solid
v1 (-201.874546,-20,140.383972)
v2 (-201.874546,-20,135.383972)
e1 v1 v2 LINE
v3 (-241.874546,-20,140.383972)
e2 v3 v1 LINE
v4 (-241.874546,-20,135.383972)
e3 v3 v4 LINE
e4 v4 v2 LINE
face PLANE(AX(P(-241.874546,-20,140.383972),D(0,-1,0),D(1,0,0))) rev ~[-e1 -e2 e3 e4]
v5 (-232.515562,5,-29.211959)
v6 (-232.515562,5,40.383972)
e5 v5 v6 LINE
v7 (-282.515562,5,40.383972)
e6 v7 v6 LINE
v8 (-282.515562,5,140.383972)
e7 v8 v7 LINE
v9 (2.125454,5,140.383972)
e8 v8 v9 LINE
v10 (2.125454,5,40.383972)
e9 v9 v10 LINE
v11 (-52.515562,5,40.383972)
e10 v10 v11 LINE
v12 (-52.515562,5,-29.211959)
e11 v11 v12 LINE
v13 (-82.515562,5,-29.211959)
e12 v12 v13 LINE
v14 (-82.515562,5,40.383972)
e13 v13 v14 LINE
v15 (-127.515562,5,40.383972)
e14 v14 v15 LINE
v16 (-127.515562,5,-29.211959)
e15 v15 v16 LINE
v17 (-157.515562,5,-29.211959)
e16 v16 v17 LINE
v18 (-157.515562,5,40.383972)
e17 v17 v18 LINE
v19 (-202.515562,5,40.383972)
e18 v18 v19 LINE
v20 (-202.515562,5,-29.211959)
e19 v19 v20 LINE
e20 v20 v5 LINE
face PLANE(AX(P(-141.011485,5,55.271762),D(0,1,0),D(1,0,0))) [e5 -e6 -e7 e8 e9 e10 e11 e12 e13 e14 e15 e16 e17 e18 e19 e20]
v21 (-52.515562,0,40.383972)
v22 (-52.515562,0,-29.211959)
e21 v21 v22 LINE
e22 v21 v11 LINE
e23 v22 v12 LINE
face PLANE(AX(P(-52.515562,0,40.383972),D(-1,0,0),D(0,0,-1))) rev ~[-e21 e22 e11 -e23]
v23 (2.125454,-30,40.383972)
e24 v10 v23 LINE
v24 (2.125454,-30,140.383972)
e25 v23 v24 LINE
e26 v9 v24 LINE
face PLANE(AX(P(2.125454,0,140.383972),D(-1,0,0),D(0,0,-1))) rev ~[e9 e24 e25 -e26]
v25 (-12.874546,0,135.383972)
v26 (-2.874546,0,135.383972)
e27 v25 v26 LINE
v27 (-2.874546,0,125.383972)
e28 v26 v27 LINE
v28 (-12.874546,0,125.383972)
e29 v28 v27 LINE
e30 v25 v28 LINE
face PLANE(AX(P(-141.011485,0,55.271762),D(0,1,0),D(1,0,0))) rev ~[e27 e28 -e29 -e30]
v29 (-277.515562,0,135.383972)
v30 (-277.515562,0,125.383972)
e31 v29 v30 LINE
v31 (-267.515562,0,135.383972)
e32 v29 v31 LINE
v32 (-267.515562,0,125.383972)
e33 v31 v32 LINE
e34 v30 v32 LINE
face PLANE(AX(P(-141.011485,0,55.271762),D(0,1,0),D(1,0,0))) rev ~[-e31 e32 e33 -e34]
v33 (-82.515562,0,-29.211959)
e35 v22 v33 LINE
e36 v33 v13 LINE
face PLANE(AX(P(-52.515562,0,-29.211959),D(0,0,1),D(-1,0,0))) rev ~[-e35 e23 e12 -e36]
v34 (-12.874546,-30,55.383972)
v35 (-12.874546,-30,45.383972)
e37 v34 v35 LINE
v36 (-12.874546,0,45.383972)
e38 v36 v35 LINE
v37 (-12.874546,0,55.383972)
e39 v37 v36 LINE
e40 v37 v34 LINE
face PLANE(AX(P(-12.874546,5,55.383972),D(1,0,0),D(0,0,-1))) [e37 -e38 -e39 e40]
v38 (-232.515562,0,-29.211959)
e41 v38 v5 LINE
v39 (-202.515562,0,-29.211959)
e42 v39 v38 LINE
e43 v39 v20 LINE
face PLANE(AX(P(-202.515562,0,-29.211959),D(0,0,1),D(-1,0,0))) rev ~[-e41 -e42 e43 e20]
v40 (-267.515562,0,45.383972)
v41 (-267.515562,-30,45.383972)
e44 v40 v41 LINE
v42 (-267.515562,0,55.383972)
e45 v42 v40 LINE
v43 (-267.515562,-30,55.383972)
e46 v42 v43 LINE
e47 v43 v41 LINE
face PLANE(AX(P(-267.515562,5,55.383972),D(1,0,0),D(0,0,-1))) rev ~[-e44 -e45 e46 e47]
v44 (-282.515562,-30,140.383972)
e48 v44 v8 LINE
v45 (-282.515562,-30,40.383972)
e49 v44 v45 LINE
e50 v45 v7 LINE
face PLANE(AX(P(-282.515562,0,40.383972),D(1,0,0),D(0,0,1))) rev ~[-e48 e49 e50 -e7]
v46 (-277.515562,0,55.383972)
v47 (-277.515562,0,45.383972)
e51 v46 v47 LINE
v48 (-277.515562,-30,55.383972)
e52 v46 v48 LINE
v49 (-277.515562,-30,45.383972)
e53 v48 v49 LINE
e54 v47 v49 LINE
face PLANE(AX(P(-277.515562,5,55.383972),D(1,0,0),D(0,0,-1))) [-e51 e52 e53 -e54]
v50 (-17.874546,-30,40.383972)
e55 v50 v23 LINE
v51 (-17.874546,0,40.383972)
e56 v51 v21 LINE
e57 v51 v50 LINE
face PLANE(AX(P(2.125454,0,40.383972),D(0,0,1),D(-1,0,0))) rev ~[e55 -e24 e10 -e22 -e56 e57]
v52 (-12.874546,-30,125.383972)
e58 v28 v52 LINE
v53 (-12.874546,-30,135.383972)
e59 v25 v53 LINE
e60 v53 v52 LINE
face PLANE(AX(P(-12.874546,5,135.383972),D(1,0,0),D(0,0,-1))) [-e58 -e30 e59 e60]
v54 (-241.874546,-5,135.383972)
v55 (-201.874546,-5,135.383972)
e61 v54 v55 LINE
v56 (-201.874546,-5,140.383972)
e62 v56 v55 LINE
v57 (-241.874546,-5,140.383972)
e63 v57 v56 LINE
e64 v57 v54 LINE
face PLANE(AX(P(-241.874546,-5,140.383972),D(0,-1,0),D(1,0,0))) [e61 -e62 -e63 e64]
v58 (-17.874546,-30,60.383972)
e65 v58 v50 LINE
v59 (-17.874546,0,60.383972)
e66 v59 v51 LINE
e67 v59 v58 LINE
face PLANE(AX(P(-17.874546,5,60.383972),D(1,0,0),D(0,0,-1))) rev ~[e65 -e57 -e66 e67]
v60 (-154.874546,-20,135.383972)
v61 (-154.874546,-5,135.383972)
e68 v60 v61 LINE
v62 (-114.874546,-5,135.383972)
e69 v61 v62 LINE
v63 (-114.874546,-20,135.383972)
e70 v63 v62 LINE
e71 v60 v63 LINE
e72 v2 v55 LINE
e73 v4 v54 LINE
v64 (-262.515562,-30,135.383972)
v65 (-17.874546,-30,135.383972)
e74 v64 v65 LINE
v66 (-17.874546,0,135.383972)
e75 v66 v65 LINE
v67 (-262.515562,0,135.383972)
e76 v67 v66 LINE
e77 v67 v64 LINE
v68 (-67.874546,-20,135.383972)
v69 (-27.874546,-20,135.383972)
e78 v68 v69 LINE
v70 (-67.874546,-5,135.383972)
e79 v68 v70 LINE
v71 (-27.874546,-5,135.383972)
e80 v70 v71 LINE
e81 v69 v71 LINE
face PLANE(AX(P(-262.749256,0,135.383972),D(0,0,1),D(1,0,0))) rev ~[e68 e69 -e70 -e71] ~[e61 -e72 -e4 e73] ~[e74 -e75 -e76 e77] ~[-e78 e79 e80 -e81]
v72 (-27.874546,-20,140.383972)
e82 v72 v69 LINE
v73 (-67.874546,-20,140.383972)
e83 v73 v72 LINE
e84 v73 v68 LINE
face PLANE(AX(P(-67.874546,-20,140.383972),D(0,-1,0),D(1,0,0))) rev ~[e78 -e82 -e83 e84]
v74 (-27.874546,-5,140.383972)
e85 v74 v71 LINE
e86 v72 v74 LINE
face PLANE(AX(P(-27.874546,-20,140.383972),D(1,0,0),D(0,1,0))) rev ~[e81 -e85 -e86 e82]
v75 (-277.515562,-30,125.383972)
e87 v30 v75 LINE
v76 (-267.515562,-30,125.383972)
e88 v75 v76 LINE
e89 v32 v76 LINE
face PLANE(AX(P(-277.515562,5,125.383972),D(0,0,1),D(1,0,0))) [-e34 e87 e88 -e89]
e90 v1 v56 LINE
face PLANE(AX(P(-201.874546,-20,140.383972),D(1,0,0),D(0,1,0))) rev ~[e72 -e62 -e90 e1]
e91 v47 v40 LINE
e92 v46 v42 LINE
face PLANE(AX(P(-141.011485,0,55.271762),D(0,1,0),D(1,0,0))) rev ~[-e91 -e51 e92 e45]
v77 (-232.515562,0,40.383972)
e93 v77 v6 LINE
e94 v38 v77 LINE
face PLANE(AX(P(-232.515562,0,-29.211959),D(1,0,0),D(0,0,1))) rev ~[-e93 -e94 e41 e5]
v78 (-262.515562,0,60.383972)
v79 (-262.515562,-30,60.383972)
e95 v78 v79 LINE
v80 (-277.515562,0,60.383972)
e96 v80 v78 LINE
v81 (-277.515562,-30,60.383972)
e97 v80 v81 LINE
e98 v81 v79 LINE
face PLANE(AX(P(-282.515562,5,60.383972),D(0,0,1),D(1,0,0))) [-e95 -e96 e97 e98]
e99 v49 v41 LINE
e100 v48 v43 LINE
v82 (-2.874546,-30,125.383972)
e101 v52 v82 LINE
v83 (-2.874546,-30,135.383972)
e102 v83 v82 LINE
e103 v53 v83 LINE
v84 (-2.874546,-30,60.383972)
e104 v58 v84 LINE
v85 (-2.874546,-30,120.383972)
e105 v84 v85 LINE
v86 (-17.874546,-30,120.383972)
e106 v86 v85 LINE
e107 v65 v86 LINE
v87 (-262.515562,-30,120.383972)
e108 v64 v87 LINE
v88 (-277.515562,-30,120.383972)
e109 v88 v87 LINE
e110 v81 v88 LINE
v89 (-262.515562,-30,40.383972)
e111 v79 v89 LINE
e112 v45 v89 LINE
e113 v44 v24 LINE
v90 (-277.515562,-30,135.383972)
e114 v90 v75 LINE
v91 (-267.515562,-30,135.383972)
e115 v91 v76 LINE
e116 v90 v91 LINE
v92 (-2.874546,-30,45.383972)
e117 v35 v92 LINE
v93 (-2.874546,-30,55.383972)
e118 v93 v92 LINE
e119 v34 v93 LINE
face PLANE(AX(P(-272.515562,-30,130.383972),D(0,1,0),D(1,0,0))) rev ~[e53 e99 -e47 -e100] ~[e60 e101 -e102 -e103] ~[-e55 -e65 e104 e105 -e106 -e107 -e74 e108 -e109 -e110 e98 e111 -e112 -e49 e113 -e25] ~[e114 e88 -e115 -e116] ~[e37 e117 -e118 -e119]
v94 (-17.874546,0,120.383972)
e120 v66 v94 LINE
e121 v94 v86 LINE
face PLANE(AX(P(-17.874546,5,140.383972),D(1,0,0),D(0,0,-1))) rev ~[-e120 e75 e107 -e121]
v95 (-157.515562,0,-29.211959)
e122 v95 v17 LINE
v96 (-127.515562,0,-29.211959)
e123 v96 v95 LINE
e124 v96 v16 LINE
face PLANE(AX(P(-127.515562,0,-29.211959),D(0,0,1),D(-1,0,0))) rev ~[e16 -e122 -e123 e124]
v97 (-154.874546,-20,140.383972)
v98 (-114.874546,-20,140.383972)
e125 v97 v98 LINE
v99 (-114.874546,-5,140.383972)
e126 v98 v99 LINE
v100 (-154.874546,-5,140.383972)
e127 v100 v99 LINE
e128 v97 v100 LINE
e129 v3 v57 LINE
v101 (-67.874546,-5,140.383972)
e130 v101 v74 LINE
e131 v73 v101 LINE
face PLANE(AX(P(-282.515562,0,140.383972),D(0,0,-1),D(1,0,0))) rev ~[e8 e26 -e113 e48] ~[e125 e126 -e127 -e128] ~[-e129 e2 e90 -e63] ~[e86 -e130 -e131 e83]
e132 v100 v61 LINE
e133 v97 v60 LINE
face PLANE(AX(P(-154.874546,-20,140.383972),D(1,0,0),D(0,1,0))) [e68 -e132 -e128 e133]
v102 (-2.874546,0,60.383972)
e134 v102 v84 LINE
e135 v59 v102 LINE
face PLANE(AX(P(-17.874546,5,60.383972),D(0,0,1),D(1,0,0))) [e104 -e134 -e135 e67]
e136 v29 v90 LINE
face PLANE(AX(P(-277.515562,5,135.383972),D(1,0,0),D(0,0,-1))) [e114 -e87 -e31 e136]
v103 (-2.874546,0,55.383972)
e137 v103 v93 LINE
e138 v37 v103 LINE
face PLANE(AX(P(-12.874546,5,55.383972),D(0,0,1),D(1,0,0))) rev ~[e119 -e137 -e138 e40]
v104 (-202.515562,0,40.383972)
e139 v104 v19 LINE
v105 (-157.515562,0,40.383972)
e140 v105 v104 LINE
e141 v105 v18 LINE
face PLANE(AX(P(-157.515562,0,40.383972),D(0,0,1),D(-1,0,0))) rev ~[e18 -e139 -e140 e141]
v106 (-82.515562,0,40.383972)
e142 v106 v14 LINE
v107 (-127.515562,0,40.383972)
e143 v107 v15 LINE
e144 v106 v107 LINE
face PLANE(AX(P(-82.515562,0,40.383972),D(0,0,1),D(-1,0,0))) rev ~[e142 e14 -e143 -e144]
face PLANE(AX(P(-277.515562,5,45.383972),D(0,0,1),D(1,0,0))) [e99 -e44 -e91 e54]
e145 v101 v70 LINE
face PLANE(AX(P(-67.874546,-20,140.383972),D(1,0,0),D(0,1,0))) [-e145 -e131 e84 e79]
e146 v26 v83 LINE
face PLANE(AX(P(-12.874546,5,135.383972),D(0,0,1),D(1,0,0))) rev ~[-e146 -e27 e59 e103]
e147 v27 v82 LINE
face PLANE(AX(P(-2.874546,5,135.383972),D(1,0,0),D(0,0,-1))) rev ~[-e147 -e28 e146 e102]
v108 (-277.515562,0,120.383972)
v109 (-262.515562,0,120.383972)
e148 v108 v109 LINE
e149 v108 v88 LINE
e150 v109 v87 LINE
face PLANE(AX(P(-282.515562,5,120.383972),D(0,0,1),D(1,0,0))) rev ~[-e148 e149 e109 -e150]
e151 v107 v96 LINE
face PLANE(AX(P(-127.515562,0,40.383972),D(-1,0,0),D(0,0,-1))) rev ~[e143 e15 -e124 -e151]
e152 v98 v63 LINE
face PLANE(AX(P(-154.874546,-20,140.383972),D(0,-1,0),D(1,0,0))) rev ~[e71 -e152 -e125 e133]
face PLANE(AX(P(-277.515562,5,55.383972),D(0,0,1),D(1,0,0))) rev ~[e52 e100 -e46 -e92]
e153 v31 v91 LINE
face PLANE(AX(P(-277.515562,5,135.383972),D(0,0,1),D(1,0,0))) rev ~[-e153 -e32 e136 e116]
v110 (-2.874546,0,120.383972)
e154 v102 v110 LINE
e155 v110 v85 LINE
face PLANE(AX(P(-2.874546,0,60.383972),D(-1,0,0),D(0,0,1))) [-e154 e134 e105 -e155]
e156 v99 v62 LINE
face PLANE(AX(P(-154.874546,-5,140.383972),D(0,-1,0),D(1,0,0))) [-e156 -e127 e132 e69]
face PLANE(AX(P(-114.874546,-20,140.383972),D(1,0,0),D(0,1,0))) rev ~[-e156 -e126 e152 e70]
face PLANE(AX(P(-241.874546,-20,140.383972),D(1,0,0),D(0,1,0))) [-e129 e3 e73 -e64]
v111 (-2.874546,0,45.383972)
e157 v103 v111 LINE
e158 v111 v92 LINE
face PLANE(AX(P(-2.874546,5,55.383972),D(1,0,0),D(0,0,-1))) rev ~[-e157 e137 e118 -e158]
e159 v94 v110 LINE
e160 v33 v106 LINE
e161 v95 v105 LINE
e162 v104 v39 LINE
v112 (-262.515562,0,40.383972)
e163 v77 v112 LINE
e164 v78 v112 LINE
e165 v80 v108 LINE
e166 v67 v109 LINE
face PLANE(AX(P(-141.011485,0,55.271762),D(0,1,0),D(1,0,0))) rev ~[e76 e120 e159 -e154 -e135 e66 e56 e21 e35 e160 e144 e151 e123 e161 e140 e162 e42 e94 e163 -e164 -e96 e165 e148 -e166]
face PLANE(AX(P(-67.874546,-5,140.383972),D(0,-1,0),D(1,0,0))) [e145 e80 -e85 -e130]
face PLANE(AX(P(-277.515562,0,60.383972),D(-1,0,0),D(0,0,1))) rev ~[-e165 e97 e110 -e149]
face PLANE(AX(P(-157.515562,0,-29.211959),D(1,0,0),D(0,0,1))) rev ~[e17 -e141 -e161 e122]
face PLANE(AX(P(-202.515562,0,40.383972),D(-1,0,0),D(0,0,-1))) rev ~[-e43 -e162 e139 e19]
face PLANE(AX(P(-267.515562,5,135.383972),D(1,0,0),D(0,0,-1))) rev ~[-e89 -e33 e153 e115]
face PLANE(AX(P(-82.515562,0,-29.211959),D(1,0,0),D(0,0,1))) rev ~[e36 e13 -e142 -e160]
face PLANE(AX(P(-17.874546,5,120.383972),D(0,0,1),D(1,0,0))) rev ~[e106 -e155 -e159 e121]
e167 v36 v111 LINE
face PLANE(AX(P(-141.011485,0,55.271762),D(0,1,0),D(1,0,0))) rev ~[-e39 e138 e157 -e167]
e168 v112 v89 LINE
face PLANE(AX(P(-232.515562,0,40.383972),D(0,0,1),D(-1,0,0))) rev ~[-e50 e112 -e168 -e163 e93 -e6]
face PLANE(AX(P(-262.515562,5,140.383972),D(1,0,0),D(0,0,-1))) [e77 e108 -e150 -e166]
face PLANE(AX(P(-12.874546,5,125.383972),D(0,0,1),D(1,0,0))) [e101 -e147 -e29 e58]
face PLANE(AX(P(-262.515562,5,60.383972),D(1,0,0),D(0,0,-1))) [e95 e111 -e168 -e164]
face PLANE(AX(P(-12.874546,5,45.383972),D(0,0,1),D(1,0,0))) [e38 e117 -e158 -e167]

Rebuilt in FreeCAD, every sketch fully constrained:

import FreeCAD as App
import Part
import Sketcher

V = App.Vector


def add_polygon(sketch, points):
    """Adds a closed chain of lines whose ends are joined by coincident constraints."""
    first, n = sketch.GeometryCount, len(points)
    for a, b in zip(points, points[1:] + points[:1]):
        sketch.addGeometry(Part.LineSegment(App.Vector(*a, 0), App.Vector(*b, 0)), False)
    for i in range(n):
        sketch.addConstraint(Sketcher.Constraint("Coincident", first + i, 2, first + (i + 1) % n, 1))

doc = App.newDocument("Part")
body = doc.addObject("PartDesign::Body", "Body")

# Sketch on XZ plane
sketch1 = body.newObject("Sketcher::SketchObject", "Sketch")
sketch1.AttachmentSupport = (doc.getObject("XZ_Plane"), [""])
sketch1.MapMode = "FlatFace"
add_polygon(sketch1, [(-233, -29), (-233, 40), (-283, 40), (-283, 140), (2, 140), (2, 40), (-53, 40), (-53, -29), (-83, -29), (-83, 40), (-128, 40), (-128, -29), (-158, -29), (-158, 40), (-203, 40), (-203, -29)])  # lines 0-15
sketch1.addConstraint([
    Sketcher.Constraint("Vertical", 0),
    Sketcher.Constraint("Horizontal", 1),
    Sketcher.Constraint("Vertical", 2),
    Sketcher.Constraint("Horizontal", 3),
    Sketcher.Constraint("Vertical", 4),
    Sketcher.Constraint("Horizontal", 5),
    Sketcher.Constraint("Vertical", 6),
    Sketcher.Constraint("Horizontal", 7),
    Sketcher.Constraint("Vertical", 8),
    Sketcher.Constraint("Horizontal", 9),
    Sketcher.Constraint("Vertical", 10),
    Sketcher.Constraint("Horizontal", 11),
    Sketcher.Constraint("Vertical", 12),
    Sketcher.Constraint("Horizontal", 13),
    Sketcher.Constraint("Vertical", 14),
    Sketcher.Constraint("Horizontal", 15),
    Sketcher.Constraint("Horizontal", 1, 2, 4, 2),
    Sketcher.Constraint("Horizontal", 5, 2, 8, 2),
    Sketcher.Constraint("Horizontal", 7, 2, 10, 2),
    Sketcher.Constraint("Horizontal", 9, 2, 12, 2),
    Sketcher.Constraint("Horizontal", 11, 2, 14, 2),
    Sketcher.Constraint("Equal", 7, 11),
    Sketcher.Constraint("Equal", 9, 13),
    Sketcher.Constraint("Equal", 11, 15),
    Sketcher.Constraint("DistanceX", 1, 2, 1, 1, 50.0),
    Sketcher.Constraint("DistanceX", 7, 2, 7, 1, 30.0),
    Sketcher.Constraint("DistanceX", 9, 2, 9, 1, 45.0),
    Sketcher.Constraint("DistanceY", 2, 1, 2, 2, 100.0),
    Sketcher.Constraint("DistanceY", 0, 1, 0, 2, 69.595931),
    Sketcher.Constraint("DistanceX", 3, 1, 3, 2, 284.641016),
    Sketcher.Constraint("DistanceX", 0, 2, -1, 1, 232.515562),
    Sketcher.Constraint("DistanceY", 6, 2, -1, 1, 29.211959),
])
pad1 = body.newObject("PartDesign::Pad", "Pad")
pad1.Profile = sketch1
pad1.Length = 5
pad1.Reversed = True

# Sketch on XZ plane
sketch2 = body.newObject("Sketcher::SketchObject", "Sketch001")
sketch2.AttachmentSupport = (doc.getObject("XZ_Plane"), [""])
sketch2.MapMode = "FlatFace"
sketch2.AttachmentOffset = App.Placement(V(0, 0, -5), App.Rotation())
add_polygon(sketch2, [(-283, 40), (-283, 60), (-263, 60), (-263, 40)])  # lines 0-3
add_polygon(sketch2, [(-268, 55), (-278, 55), (-278, 45), (-268, 45)])  # lines 4-7
add_polygon(sketch2, [(-283, 120), (-283, 140), (-263, 140), (-263, 120)])  # lines 8-11
add_polygon(sketch2, [(-268, 135), (-278, 135), (-278, 125), (-268, 125)])  # lines 12-15
add_polygon(sketch2, [(-18, 40), (-18, 60), (2, 60), (2, 40)])  # lines 16-19
add_polygon(sketch2, [(-3, 55), (-13, 55), (-13, 45), (-3, 45)])  # lines 20-23
add_polygon(sketch2, [(-18, 120), (-18, 140), (2, 140), (2, 120)])  # lines 24-27
add_polygon(sketch2, [(-3, 135), (-13, 135), (-13, 125), (-3, 125)])  # lines 28-31
sketch2.addConstraint([
    Sketcher.Constraint("Vertical", 0),
    Sketcher.Constraint("Horizontal", 1),
    Sketcher.Constraint("Vertical", 2),
    Sketcher.Constraint("Horizontal", 3),
    Sketcher.Constraint("Horizontal", 4),
    Sketcher.Constraint("Vertical", 5),
    Sketcher.Constraint("Horizontal", 6),
    Sketcher.Constraint("Vertical", 7),
    Sketcher.Constraint("Vertical", 8),
    Sketcher.Constraint("Horizontal", 9),
    Sketcher.Constraint("Vertical", 10),
    Sketcher.Constraint("Horizontal", 11),
    Sketcher.Constraint("Horizontal", 12),
    Sketcher.Constraint("Vertical", 13),
    Sketcher.Constraint("Horizontal", 14),
    Sketcher.Constraint("Vertical", 15),
    Sketcher.Constraint("Vertical", 16),
    Sketcher.Constraint("Horizontal", 17),
    Sketcher.Constraint("Vertical", 18),
    Sketcher.Constraint("Horizontal", 19),
    Sketcher.Constraint("Horizontal", 20),
    Sketcher.Constraint("Vertical", 21),
    Sketcher.Constraint("Horizontal", 22),
    Sketcher.Constraint("Vertical", 23),
    Sketcher.Constraint("Vertical", 24),
    Sketcher.Constraint("Horizontal", 25),
    Sketcher.Constraint("Vertical", 26),
    Sketcher.Constraint("Horizontal", 27),
    Sketcher.Constraint("Horizontal", 28),
    Sketcher.Constraint("Vertical", 29),
    Sketcher.Constraint("Horizontal", 30),
    Sketcher.Constraint("Vertical", 31),
    Sketcher.Constraint("Horizontal", 1, 2, 16, 2),
    Sketcher.Constraint("Horizontal", 3, 2, 18, 2),
    Sketcher.Constraint("Horizontal", 7, 2, 20, 2),
    Sketcher.Constraint("Horizontal", 6, 2, 21, 2),
    Sketcher.Constraint("Horizontal", 9, 2, 24, 2),
    Sketcher.Constraint("Horizontal", 11, 2, 26, 2),
    Sketcher.Constraint("Horizontal", 15, 2, 28, 2),
    Sketcher.Constraint("Horizontal", 14, 2, 29, 2),
    Sketcher.Constraint("Vertical", 3, 2, 8, 2),
    Sketcher.Constraint("Vertical", 2, 2, 9, 2),
    Sketcher.Constraint("Vertical", 5, 2, 12, 2),
    Sketcher.Constraint("Vertical", 7, 2, 14, 2),
    Sketcher.Constraint("Vertical", 19, 2, 24, 2),
    Sketcher.Constraint("Vertical", 18, 2, 25, 2),
    Sketcher.Constraint("Vertical", 21, 2, 28, 2),
    Sketcher.Constraint("Vertical", 23, 2, 30, 2),
    Sketcher.Constraint("Equal", 11, 17),
    Sketcher.Constraint("Equal", 14, 20),
    Sketcher.Constraint("Equal", 27, 0),
    Sketcher.Constraint("Equal", 30, 5),
    Sketcher.Constraint("Equal", 2, 8),
    Sketcher.Constraint("Equal", 7, 13),
    Sketcher.Constraint("DistanceX", 1, 1, 1, 2, 20.0),
    Sketcher.Constraint("DistanceX", 4, 2, 4, 1, 10.0),
    Sketcher.Constraint("DistanceX", 0, 2, 4, 2, 5.0),
    Sketcher.Constraint("DistanceY", 4, 2, 0, 2, 5.0),
    Sketcher.Constraint("DistanceY", 0, 2, 8, 2, 80.0),
    Sketcher.Constraint("DistanceY", 12, 2, 8, 2, 5.0),
    Sketcher.Constraint("DistanceX", 16, 2, 20, 2, 5.0),
    Sketcher.Constraint("DistanceX", 0, 2, -1, 1, 282.515562),
    Sketcher.Constraint("DistanceY", -1, 1, 0, 2, 60.383972),
    Sketcher.Constraint("DistanceX", 16, 2, -1, 1, 17.874546),
])
pad2 = body.newObject("PartDesign::Pad", "Pad001")
pad2.Profile = sketch2
pad2.Length = 35

# Sketch on XZ plane
sketch3 = body.newObject("Sketcher::SketchObject", "Sketch002")
sketch3.AttachmentSupport = (doc.getObject("XZ_Plane"), [""])
sketch3.MapMode = "FlatFace"
add_polygon(sketch3, [(-263, 140), (-263, 135), (-18, 135), (-18, 140)])  # lines 0-3
add_polygon(sketch3, [(-283, 120), (-283, 60), (-278, 60), (-278, 120)])  # lines 4-7
add_polygon(sketch3, [(-3, 120), (-3, 60), (2, 60), (2, 120)])  # lines 8-11
sketch3.addConstraint([
    Sketcher.Constraint("Vertical", 0),
    Sketcher.Constraint("Horizontal", 1),
    Sketcher.Constraint("Vertical", 2),
    Sketcher.Constraint("Horizontal", 3),
    Sketcher.Constraint("Vertical", 4),
    Sketcher.Constraint("Horizontal", 5),
    Sketcher.Constraint("Vertical", 6),
    Sketcher.Constraint("Horizontal", 7),
    Sketcher.Constraint("Vertical", 8),
    Sketcher.Constraint("Horizontal", 9),
    Sketcher.Constraint("Vertical", 10),
    Sketcher.Constraint("Horizontal", 11),
    Sketcher.Constraint("Horizontal", 5, 2, 8, 2),
    Sketcher.Constraint("Horizontal", 7, 2, 10, 2),
    Sketcher.Constraint("Equal", 7, 9),
    Sketcher.Constraint("Equal", 11, 0),
    Sketcher.Constraint("DistanceX", 5, 1, 5, 2, 5.0),
    Sketcher.Constraint("DistanceY", 4, 2, 4, 1, 60.0),
    Sketcher.Constraint("DistanceY", 4, 2, 0, 2, 75.0),
    Sketcher.Constraint("DistanceX", 1, 2, 8, 2, 15.0),
    Sketcher.Constraint("DistanceX", 1, 1, 1, 2, 244.87471),
    Sketcher.Constraint("DistanceX", 4, 2, -1, 1, 282.515562),
    Sketcher.Constraint("DistanceX", 0, 2, -1, 1, 262.749256),
    Sketcher.Constraint("DistanceY", -1, 1, 0, 2, 135.383972),
])
pad3 = body.newObject("PartDesign::Pad", "Pad002")
pad3.Profile = sketch3
pad3.Length = 30

# Sketch on XY plane
sketch4 = body.newObject("Sketcher::SketchObject", "Sketch003")
sketch4.AttachmentSupport = (doc.getObject("XY_Plane"), [""])
sketch4.MapMode = "FlatFace"
sketch4.AttachmentOffset = App.Placement(V(0, 0, 140.383972), App.Rotation())
add_polygon(sketch4, [(-155, -5), (-155, -20), (-115, -20), (-115, -5)])  # lines 0-3
add_polygon(sketch4, [(-68, -5), (-68, -20), (-28, -20), (-28, -5)])  # lines 4-7
add_polygon(sketch4, [(-242, -5), (-242, -20), (-202, -20), (-202, -5)])  # lines 8-11
sketch4.addConstraint([
    Sketcher.Constraint("Vertical", 0),
    Sketcher.Constraint("Horizontal", 1),
    Sketcher.Constraint("Vertical", 2),
    Sketcher.Constraint("Horizontal", 3),
    Sketcher.Constraint("Vertical", 4),
    Sketcher.Constraint("Horizontal", 5),
    Sketcher.Constraint("Vertical", 6),
    Sketcher.Constraint("Horizontal", 7),
    Sketcher.Constraint("Vertical", 8),
    Sketcher.Constraint("Horizontal", 9),
    Sketcher.Constraint("Vertical", 10),
    Sketcher.Constraint("Horizontal", 11),
    Sketcher.Constraint("Horizontal", 1, 2, 4, 2),
    Sketcher.Constraint("Horizontal", 3, 2, 6, 2),
    Sketcher.Constraint("Horizontal", 5, 2, 8, 2),
    Sketcher.Constraint("Horizontal", 7, 2, 10, 2),
    Sketcher.Constraint("Equal", 3, 5),
    Sketcher.Constraint("Equal", 7, 9),
    Sketcher.Constraint("DistanceX", 1, 1, 1, 2, 40.0),
    Sketcher.Constraint("DistanceY", 0, 2, 0, 1, 15.0),
    Sketcher.Constraint("DistanceY", 0, 2, -1, 1, 20.0),
    Sketcher.Constraint("DistanceX", 1, 2, 4, 2, 47.0),
    Sketcher.Constraint("DistanceX", 8, 2, 0, 2, 87.0),
    Sketcher.Constraint("DistanceX", 0, 2, -1, 1, 154.874546),
])
pocket1 = body.newObject("PartDesign::Pocket", "Pocket")
pocket1.Profile = sketch4
pocket1.Length = 5

doc.recompute()
